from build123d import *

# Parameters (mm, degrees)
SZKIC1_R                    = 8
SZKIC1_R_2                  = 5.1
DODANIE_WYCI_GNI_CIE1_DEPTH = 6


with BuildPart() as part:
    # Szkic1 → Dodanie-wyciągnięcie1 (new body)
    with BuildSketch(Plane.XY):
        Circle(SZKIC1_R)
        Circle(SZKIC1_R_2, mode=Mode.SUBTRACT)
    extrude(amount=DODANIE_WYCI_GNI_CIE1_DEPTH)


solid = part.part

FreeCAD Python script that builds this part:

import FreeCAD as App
import Part
import Sketcher

V = App.Vector
Q = App.Units.Quantity

doc = App.newDocument("Part")
body = doc.addObject("PartDesign::Body", "Body")

# Sketch on XY plane
sketch1 = body.newObject("Sketcher::SketchObject", "Sketch")
sketch1.AttachmentSupport = (doc.getObject("XY_Plane"), [""])
sketch1.MapMode = "FlatFace"
sketch1.addGeometry(Part.Circle(V(0, 0, 0), V(0, 0, 1), 8), False)
sketch1.addGeometry(Part.Circle(V(0, 0, 0), V(0, 0, 1), 5), False)
sketch1.addConstraint(Sketcher.Constraint("Coincident", 0, 3, -1, 1))
sketch1.addConstraint(Sketcher.Constraint("Coincident", 1, 3, -1, 1))
sketch1.addConstraint(Sketcher.Constraint("Diameter", 0, Q("16 mm")))
sketch1.addConstraint(Sketcher.Constraint("Diameter", 1, Q("10.2 mm")))
pad1 = body.newObject("PartDesign::Pad", "Pad")
pad1.Profile = sketch1
pad1.Length = 6

doc.recompute()
